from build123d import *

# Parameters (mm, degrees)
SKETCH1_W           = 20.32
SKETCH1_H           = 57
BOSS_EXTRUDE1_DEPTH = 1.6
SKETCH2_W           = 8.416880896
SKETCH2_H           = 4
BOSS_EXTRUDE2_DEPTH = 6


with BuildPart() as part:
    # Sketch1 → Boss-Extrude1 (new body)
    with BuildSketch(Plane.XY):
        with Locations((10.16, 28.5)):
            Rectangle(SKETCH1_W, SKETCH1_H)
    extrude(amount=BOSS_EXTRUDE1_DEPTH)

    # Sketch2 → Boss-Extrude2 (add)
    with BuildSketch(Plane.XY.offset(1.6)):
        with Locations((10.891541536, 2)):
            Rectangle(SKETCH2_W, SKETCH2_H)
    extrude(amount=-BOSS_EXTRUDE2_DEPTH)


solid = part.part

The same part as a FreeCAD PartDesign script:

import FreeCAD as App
import Part
import Sketcher
Q = App.Units.Quantity


def add_polygon(sketch, points):
    """Adds a closed chain of lines whose ends are joined by coincident constraints."""
    first, n = sketch.GeometryCount, len(points)
    for a, b in zip(points, points[1:] + points[:1]):
        sketch.addGeometry(Part.LineSegment(App.Vector(*a, 0), App.Vector(*b, 0)), False)
    for i in range(n):
        sketch.addConstraint(Sketcher.Constraint("Coincident", first + i, 2, first + (i + 1) % n, 1))

doc = App.newDocument("Part")
body = doc.addObject("PartDesign::Body", "Body")

# Sketch on XY plane
sketch1 = body.newObject("Sketcher::SketchObject", "Sketch")
sketch1.AttachmentSupport = (doc.getObject("XY_Plane"), [""])
sketch1.MapMode = "FlatFace"
add_polygon(sketch1, [(0, 57), (0, 0), (20.32, 0), (20.32, 57)])  # lines 0-3
sketch1.addConstraint(Sketcher.Constraint("Vertical", 0))
sketch1.addConstraint(Sketcher.Constraint("Horizontal", 1))
sketch1.addConstraint(Sketcher.Constraint("Vertical", 2))
sketch1.addConstraint(Sketcher.Constraint("Horizontal", 3))
sketch1.addConstraint(Sketcher.Constraint("Coincident", 0, 2, -1, 1))
sketch1.addConstraint(Sketcher.Constraint("DistanceY", 0, 2, 0, 1, Q("57 mm")))
sketch1.addConstraint(Sketcher.Constraint("DistanceX", 1, 1, 1, 2, Q("20.32 mm")))
pad1 = body.newObject("PartDesign::Pad", "Pad")
pad1.Profile = sketch1
pad1.Length = 1.6

# Sketch on XY plane
sketch2 = body.newObject("Sketcher::SketchObject", "Sketch001")
sketch2.AttachmentSupport = (doc.getObject("XY_Plane"), [""])
sketch2.MapMode = "FlatFace"
sketch2.AttachmentOffset = App.Placement(App.Vector(0, 0, 1.6), App.Rotation())
add_polygon(sketch2, [(6.683101, 4), (6.683101, 0), (15.099982, 0), (15.099982, 4)])  # lines 0-3
sketch2.addConstraint(Sketcher.Constraint("Vertical", 0))
sketch2.addConstraint(Sketcher.Constraint("Horizontal", 1))
sketch2.addConstraint(Sketcher.Constraint("Vertical", 2))
sketch2.addConstraint(Sketcher.Constraint("Horizontal", 3))
sketch2.addConstraint(Sketcher.Constraint("PointOnObject", 0, 2, -1))
sketch2.addConstraint(Sketcher.Constraint("DistanceY", 0, 2, 0, 1, Q("4 mm")))
sketch2.addConstraint(Sketcher.Constraint("DistanceX", 1, 1, 1, 2, Q("8.416881 mm")))
sketch2.addConstraint(Sketcher.Constraint("DistanceX", -1, 1, 0, 2, Q("6.683101 mm")))
pad2 = body.newObject("PartDesign::Pad", "Pad001")
pad2.Profile = sketch2
pad2.Length = 6
pad2.Reversed = True

doc.recompute()
